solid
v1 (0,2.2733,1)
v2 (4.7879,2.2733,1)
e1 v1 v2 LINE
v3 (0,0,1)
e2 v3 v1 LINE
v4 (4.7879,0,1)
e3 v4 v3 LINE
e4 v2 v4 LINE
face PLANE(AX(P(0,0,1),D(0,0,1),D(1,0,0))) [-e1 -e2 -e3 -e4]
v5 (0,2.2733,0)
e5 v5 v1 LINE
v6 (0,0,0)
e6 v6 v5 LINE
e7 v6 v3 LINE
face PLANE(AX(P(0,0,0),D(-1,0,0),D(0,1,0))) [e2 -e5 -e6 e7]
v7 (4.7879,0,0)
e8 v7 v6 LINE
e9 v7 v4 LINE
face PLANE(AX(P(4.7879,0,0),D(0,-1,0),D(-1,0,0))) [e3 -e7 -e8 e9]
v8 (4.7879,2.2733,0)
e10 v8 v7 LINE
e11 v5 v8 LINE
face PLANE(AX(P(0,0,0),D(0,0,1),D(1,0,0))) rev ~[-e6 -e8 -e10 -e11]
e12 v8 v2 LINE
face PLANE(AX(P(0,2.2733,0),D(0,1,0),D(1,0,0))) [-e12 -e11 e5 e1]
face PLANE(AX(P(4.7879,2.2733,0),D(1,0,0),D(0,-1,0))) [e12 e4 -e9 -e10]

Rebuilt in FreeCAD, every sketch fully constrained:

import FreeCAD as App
import Part
import Sketcher
from FreeCAD import Vector
Q = App.Units.Quantity

doc = App.newDocument("Part")
body = doc.addObject("PartDesign::Body", "Body")

# Sketch on XY plane
sketch1 = doc.addObject("Sketcher::SketchObject", "Sketch")
body.addObject(sketch1)
sketch1.AttachmentSupport = (doc.XY_Plane, [""])
sketch1.MapMode = "FlatFace"
sketch1.addGeometry([
    Part.LineSegment(Vector(4.7879, 2.2733, 0), Vector(0, 2.2733, 0)),
    Part.LineSegment(Vector(0, 2.2733, 0), Vector(0, 0, 0)),
    Part.LineSegment(Vector(0, 0, 0), Vector(4.7879, 0, 0)),
    Part.LineSegment(Vector(4.7879, 0, 0), Vector(4.7879, 2.2733, 0)),
], False)
sketch1.addConstraint([
    Sketcher.Constraint("Coincident", 0, 2, 1, 1),
    Sketcher.Constraint("Coincident", 1, 2, 2, 1),
    Sketcher.Constraint("Coincident", 2, 2, 3, 1),
    Sketcher.Constraint("Coincident", 3, 2, 0, 1),
    Sketcher.Constraint("Horizontal", 0),
    Sketcher.Constraint("Vertical", 1),
    Sketcher.Constraint("Horizontal", 2),
    Sketcher.Constraint("Vertical", 3),
    Sketcher.Constraint("Coincident", 1, 2, -1, 1),
    Sketcher.Constraint("DistanceX", 0, 2, 0, 1, Q("4.788 mm")),
    Sketcher.Constraint("DistanceY", 1, 2, 1, 1, Q("2.2733 mm")),
])
pad1 = doc.addObject("PartDesign::Pad", "Pad")
body.addObject(pad1)
pad1.Profile = sketch1
pad1.Length = 1

doc.recompute()
